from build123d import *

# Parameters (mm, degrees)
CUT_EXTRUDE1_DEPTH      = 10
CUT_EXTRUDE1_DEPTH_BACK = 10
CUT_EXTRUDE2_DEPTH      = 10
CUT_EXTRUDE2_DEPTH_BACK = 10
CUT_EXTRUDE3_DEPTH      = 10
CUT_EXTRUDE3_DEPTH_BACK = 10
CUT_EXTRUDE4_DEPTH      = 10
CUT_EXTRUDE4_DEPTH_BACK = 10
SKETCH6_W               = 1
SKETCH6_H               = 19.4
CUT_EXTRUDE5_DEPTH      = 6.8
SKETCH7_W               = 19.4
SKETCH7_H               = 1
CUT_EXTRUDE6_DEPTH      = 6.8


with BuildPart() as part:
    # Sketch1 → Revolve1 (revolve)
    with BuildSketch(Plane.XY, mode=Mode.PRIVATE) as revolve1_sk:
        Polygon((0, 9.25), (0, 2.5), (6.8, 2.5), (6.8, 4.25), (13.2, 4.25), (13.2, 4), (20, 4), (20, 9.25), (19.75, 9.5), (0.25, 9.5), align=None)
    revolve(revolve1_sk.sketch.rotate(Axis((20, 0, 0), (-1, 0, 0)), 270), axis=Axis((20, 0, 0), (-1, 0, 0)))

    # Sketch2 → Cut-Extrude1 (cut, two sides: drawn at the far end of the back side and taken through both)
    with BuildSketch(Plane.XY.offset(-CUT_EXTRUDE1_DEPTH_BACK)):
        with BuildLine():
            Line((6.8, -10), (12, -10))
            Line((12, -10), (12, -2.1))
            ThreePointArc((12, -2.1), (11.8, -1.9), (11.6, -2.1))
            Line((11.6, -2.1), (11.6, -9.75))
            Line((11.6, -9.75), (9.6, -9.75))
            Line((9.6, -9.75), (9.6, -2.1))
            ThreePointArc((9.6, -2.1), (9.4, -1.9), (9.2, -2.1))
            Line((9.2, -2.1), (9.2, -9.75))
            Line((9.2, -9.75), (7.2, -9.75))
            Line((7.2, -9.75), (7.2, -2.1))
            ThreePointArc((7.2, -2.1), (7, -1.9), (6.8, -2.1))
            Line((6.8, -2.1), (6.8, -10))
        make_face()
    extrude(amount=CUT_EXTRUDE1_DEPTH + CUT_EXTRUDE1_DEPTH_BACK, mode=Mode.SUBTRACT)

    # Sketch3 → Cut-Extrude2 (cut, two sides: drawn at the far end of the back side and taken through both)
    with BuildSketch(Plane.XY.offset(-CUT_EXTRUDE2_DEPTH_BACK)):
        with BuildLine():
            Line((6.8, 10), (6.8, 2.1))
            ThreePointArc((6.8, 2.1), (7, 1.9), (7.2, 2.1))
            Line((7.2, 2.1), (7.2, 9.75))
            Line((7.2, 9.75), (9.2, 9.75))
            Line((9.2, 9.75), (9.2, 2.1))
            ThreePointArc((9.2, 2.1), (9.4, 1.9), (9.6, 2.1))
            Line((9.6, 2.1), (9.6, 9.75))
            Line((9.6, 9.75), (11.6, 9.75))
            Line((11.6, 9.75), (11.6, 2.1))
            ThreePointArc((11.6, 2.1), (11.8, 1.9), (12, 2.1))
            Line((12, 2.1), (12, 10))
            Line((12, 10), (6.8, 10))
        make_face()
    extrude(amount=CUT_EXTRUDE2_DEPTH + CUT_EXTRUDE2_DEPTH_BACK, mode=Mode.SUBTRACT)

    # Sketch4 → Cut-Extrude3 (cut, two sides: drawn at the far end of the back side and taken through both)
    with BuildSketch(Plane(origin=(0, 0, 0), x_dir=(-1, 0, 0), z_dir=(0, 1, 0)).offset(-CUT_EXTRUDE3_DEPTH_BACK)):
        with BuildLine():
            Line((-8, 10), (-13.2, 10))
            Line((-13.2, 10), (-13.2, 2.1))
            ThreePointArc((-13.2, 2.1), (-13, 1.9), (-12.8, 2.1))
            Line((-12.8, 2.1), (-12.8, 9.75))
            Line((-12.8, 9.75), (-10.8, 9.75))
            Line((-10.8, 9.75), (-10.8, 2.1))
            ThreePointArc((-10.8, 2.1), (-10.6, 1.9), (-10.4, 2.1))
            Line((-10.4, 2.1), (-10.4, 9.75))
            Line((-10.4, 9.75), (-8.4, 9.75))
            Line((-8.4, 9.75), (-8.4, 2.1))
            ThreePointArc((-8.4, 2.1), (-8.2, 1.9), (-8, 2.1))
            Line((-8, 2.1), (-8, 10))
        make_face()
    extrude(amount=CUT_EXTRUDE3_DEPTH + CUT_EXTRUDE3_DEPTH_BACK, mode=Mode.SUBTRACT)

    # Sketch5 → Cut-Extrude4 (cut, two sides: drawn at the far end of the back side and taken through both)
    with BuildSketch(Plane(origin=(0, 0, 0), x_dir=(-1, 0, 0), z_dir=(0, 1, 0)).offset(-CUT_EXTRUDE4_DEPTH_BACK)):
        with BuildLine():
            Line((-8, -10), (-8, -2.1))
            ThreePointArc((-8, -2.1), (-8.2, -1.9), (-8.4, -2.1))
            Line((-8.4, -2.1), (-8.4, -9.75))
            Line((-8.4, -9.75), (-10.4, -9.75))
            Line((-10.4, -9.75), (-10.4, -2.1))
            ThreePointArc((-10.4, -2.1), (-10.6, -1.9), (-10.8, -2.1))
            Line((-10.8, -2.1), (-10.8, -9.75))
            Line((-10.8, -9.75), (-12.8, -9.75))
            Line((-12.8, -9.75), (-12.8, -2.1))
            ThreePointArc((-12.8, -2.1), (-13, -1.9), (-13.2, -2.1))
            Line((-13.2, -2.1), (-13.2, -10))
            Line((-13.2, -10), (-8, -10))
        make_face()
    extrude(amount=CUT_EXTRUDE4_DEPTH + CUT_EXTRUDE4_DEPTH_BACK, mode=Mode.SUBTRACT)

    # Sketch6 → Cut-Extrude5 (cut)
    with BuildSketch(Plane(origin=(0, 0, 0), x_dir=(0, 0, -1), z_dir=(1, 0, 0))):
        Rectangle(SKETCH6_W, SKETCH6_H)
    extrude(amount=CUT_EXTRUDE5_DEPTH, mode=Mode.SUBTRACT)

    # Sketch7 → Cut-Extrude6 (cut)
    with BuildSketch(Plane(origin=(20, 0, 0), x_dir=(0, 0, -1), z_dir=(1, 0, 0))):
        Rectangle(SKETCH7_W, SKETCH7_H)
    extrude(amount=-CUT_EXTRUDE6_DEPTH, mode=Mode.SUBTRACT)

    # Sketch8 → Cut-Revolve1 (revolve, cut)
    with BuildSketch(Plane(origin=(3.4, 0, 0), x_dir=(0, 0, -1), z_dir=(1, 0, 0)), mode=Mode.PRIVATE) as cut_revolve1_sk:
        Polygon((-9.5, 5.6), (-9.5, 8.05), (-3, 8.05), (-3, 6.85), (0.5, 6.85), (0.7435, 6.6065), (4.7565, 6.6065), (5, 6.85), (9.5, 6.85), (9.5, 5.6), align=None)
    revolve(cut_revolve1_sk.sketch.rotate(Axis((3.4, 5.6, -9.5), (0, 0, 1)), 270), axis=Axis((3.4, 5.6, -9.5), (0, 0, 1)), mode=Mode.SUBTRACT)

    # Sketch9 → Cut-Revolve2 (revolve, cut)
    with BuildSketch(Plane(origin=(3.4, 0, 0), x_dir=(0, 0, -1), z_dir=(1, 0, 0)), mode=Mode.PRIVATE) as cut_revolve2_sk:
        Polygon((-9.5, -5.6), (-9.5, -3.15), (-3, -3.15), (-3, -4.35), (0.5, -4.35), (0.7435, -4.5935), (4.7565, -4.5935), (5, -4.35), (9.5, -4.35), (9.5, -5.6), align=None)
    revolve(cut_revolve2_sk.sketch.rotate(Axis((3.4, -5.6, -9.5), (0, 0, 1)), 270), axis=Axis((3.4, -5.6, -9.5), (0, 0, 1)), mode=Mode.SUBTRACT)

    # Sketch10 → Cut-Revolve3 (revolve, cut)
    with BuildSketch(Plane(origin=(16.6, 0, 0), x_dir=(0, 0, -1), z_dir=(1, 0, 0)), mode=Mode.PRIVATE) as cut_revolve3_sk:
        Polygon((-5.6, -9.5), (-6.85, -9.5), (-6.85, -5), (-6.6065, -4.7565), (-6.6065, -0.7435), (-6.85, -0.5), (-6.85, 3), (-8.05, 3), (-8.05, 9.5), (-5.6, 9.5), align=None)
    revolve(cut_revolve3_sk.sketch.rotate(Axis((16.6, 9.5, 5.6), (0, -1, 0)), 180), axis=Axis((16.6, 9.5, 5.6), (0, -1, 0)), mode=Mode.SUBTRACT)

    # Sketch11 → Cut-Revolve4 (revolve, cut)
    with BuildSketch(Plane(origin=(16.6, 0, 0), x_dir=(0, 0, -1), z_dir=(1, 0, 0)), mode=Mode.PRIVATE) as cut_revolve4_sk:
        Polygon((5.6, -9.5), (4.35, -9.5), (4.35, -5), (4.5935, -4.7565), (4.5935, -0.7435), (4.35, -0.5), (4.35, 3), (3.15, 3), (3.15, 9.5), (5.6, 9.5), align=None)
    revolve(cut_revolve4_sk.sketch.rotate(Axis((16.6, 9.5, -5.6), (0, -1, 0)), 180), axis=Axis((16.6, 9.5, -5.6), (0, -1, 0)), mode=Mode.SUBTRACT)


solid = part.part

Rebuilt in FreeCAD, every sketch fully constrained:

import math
import FreeCAD as App
import Part
import Sketcher
from FreeCAD import Vector
Q = App.Units.Quantity


def add_polygon(sketch, points):
    """Adds a closed chain of lines whose ends are joined by coincident constraints."""
    first, n = sketch.GeometryCount, len(points)
    for a, b in zip(points, points[1:] + points[:1]):
        sketch.addGeometry(Part.LineSegment(App.Vector(*a, 0), App.Vector(*b, 0)), False)
    for i in range(n):
        sketch.addConstraint(Sketcher.Constraint("Coincident", first + i, 2, first + (i + 1) % n, 1))

doc = App.newDocument("Part")
body = doc.addObject("PartDesign::Body", "Body")

# Sketch on XY plane
sketch1 = body.newObject("Sketcher::SketchObject", "Sketch")
sketch1.AttachmentSupport = (doc.getObject("XY_Plane"), [""])
sketch1.MapMode = "FlatFace"
add_polygon(sketch1, [(0, 9.25), (0, 2.5), (6.8, 2.5), (6.8, 4.25), (13.2, 4.25), (13.2, 4), (20, 4), (20, 9.25), (19.75, 9.5), (0.25, 9.5)])  # lines 0-9
sketch1.addConstraint([
    Sketcher.Constraint("Vertical", 0),
    Sketcher.Constraint("Horizontal", 1),
    Sketcher.Constraint("Vertical", 2),
    Sketcher.Constraint("Horizontal", 3),
    Sketcher.Constraint("Vertical", 4),
    Sketcher.Constraint("Horizontal", 5),
    Sketcher.Constraint("Vertical", 6),
    Sketcher.Constraint("Horizontal", 8),
    Sketcher.Constraint("PointOnObject", 0, 2, -2),
    Sketcher.Constraint("Perpendicular", 7, 9),
    Sketcher.Constraint("Horizontal", 6, 2, 9, 2),
    Sketcher.Constraint("Equal", 1, 5),
    Sketcher.Constraint("Equal", 7, 9),
    Sketcher.Constraint("DistanceX", 1, 1, 1, 2, Q("6.8 mm")),
    Sketcher.Constraint("DistanceX", 3, 1, 3, 2, Q("6.4 mm")),
    Sketcher.Constraint("DistanceX", 8, 2, 8, 1, Q("19.5 mm")),
    Sketcher.Constraint("DistanceY", -1, 1, 4, 2, Q("4 mm")),
    Sketcher.Constraint("DistanceY", 3, 2, 6, 2, Q("5 mm")),
    Sketcher.Constraint("DistanceY", 0, 2, 8, 2, Q("7 mm")),
    Sketcher.Constraint("DistanceY", 4, 2, 4, 1, Q("0.25 mm")),
])
revolution = body.newObject("PartDesign::Revolution", "Revolution")
revolution.Profile = sketch1
revolution.ReferenceAxis = (sketch1, ["H_Axis"])
revolution.Angle = 360

# Sketch on XY plane
sketch2 = body.newObject("Sketcher::SketchObject", "Sketch001")
sketch2.AttachmentSupport = (doc.getObject("XY_Plane"), [""])
sketch2.MapMode = "FlatFace"
sketch2.addGeometry([
    Part.LineSegment(Vector(6.8, -10, 0), Vector(12, -10, 0)),  # 0
    Part.LineSegment(Vector(12, -10, 0), Vector(12, -2.1, 0)),  # 1
    Part.ArcOfCircle(Part.Circle(Vector(11.8, -2.1, 0), Vector(0, 0, 1), 0.2), math.radians(0), math.radians(180)),  # 2
    Part.LineSegment(Vector(11.6, -2.1, 0), Vector(11.6, -9.75, 0)),  # 3
    Part.LineSegment(Vector(11.6, -9.75, 0), Vector(9.6, -9.75, 0)),  # 4
    Part.LineSegment(Vector(9.6, -9.75, 0), Vector(9.6, -2.1, 0)),  # 5
    Part.ArcOfCircle(Part.Circle(Vector(9.4, -2.1, 0), Vector(0, 0, 1), 0.2), math.radians(0), math.radians(180)),  # 6
    Part.LineSegment(Vector(9.2, -2.1, 0), Vector(9.2, -9.75, 0)),  # 7
    Part.LineSegment(Vector(9.2, -9.75, 0), Vector(7.2, -9.75, 0)),  # 8
    Part.LineSegment(Vector(7.2, -9.75, 0), Vector(7.2, -2.1, 0)),  # 9
    Part.ArcOfCircle(Part.Circle(Vector(7, -2.1, 0), Vector(0, 0, 1), 0.2), math.radians(0), math.radians(180)),  # 10
    Part.LineSegment(Vector(6.8, -2.1, 0), Vector(6.8, -10, 0)),  # 11
], False)
sketch2.addConstraint([
    Sketcher.Constraint("Coincident", 0, 2, 1, 1),
    Sketcher.Constraint("Tangent", 1, 2, 2, 1),
    Sketcher.Constraint("Tangent", 2, 2, 3, 1),
    Sketcher.Constraint("Coincident", 3, 2, 4, 1),
    Sketcher.Constraint("Coincident", 4, 2, 5, 1),
    Sketcher.Constraint("Tangent", 5, 2, 6, 1),
    Sketcher.Constraint("Tangent", 6, 2, 7, 1),
    Sketcher.Constraint("Coincident", 7, 2, 8, 1),
    Sketcher.Constraint("Coincident", 8, 2, 9, 1),
    Sketcher.Constraint("Tangent", 9, 2, 10, 1),
    Sketcher.Constraint("Tangent", 10, 2, 11, 1),
    Sketcher.Constraint("Coincident", 11, 2, 0, 1),
    Sketcher.Constraint("Horizontal", 0),
    Sketcher.Constraint("Vertical", 1),
    Sketcher.Constraint("Vertical", 3),
    Sketcher.Constraint("Horizontal", 4),
    Sketcher.Constraint("Vertical", 5),
    Sketcher.Constraint("Vertical", 7),
    Sketcher.Constraint("Horizontal", 8),
    Sketcher.Constraint("Vertical", 9),
    Sketcher.Constraint("Vertical", 11),
    Sketcher.Constraint("Equal", 2, 6),
    Sketcher.Constraint("Equal", 6, 10),
    Sketcher.Constraint("Horizontal", 2, 3, 6, 3),
    Sketcher.Constraint("Horizontal", 6, 3, 10, 3),
    Sketcher.Constraint("Horizontal", 4, 2, 7, 2),
    Sketcher.Constraint("Equal", 4, 8),
    Sketcher.Constraint("Radius", 2, Q("0.2 mm")),
    Sketcher.Constraint("DistanceX", 4, 2, 4, 1, Q("2 mm")),
    Sketcher.Constraint("DistanceY", 1, 1, 1, 2, Q("7.9 mm")),
    Sketcher.Constraint("DistanceX", -1, 1, 10, 3, Q("7 mm")),
    Sketcher.Constraint("DistanceY", 0, 2, -1, 1, Q("10 mm")),
    Sketcher.Constraint("DistanceY", 3, 2, 3, 1, Q("7.65 mm")),
])
pocket1 = body.newObject("PartDesign::Pocket", "Pocket")
pocket1.Profile = sketch2
pocket1.Type = "ThroughAll"
pocket1.Midplane = True

# Sketch on XY plane
sketch3 = body.newObject("Sketcher::SketchObject", "Sketch002")
sketch3.AttachmentSupport = (doc.getObject("XY_Plane"), [""])
sketch3.MapMode = "FlatFace"
sketch3.addGeometry([
    Part.LineSegment(Vector(6.8, 10, 0), Vector(6.8, 2.1, 0)),  # 0
    Part.ArcOfCircle(Part.Circle(Vector(7, 2.1, 0), Vector(0, 0, 1), 0.2), math.radians(180), math.radians(360)),  # 1
    Part.LineSegment(Vector(7.2, 2.1, 0), Vector(7.2, 9.75, 0)),  # 2
    Part.LineSegment(Vector(7.2, 9.75, 0), Vector(9.2, 9.75, 0)),  # 3
    Part.LineSegment(Vector(9.2, 9.75, 0), Vector(9.2, 2.1, 0)),  # 4
    Part.ArcOfCircle(Part.Circle(Vector(9.4, 2.1, 0), Vector(0, 0, 1), 0.2), math.radians(180), math.radians(360)),  # 5
    Part.LineSegment(Vector(9.6, 2.1, 0), Vector(9.6, 9.75, 0)),  # 6
    Part.LineSegment(Vector(9.6, 9.75, 0), Vector(11.6, 9.75, 0)),  # 7
    Part.LineSegment(Vector(11.6, 9.75, 0), Vector(11.6, 2.1, 0)),  # 8
    Part.ArcOfCircle(Part.Circle(Vector(11.8, 2.1, 0), Vector(0, 0, 1), 0.2), math.radians(180), math.radians(360)),  # 9
    Part.LineSegment(Vector(12, 2.1, 0), Vector(12, 10, 0)),  # 10
    Part.LineSegment(Vector(12, 10, 0), Vector(6.8, 10, 0)),  # 11
], False)
sketch3.addConstraint([
    Sketcher.Constraint("Tangent", 0, 2, 1, 1),
    Sketcher.Constraint("Tangent", 1, 2, 2, 1),
    Sketcher.Constraint("Coincident", 2, 2, 3, 1),
    Sketcher.Constraint("Coincident", 3, 2, 4, 1),
    Sketcher.Constraint("Tangent", 4, 2, 5, 1),
    Sketcher.Constraint("Tangent", 5, 2, 6, 1),
    Sketcher.Constraint("Coincident", 6, 2, 7, 1),
    Sketcher.Constraint("Coincident", 7, 2, 8, 1),
    Sketcher.Constraint("Tangent", 8, 2, 9, 1),
    Sketcher.Constraint("Tangent", 9, 2, 10, 1),
    Sketcher.Constraint("Coincident", 10, 2, 11, 1),
    Sketcher.Constraint("Coincident", 11, 2, 0, 1),
    Sketcher.Constraint("Vertical", 0),
    Sketcher.Constraint("Vertical", 2),
    Sketcher.Constraint("Horizontal", 3),
    Sketcher.Constraint("Vertical", 4),
    Sketcher.Constraint("Vertical", 6),
    Sketcher.Constraint("Horizontal", 7),
    Sketcher.Constraint("Vertical", 8),
    Sketcher.Constraint("Vertical", 10),
    Sketcher.Constraint("Horizontal", 11),
    Sketcher.Constraint("Equal", 1, 5),
    Sketcher.Constraint("Equal", 5, 9),
    Sketcher.Constraint("Horizontal", 1, 3, 5, 3),
    Sketcher.Constraint("Horizontal", 5, 3, 9, 3),
    Sketcher.Constraint("Horizontal", 3, 2, 6, 2),
    Sketcher.Constraint("Equal", 3, 7),
    Sketcher.Constraint("Radius", 1, Q("0.2 mm")),
    Sketcher.Constraint("DistanceX", 3, 1, 3, 2, Q("2 mm")),
    Sketcher.Constraint("DistanceY", 0, 2, 0, 1, Q("7.9 mm")),
    Sketcher.Constraint("DistanceX", -1, 1, 1, 3, Q("7 mm")),
    Sketcher.Constraint("DistanceY", -1, 1, 10, 2, Q("10 mm")),
    Sketcher.Constraint("DistanceY", 2, 1, 2, 2, Q("7.65 mm")),
])
pocket2 = body.newObject("PartDesign::Pocket", "Pocket001")
pocket2.Profile = sketch3
pocket2.Type = "ThroughAll"
pocket2.Midplane = True

# Sketch on XZ plane
sketch4 = body.newObject("Sketcher::SketchObject", "Sketch003")
sketch4.AttachmentSupport = (doc.getObject("XZ_Plane"), [""])
sketch4.MapMode = "FlatFace"
sketch4.addGeometry([
    Part.LineSegment(Vector(8, 10, 0), Vector(13.2, 10, 0)),  # 0
    Part.LineSegment(Vector(13.2, 10, 0), Vector(13.2, 2.1, 0)),  # 1
    Part.ArcOfCircle(Part.Circle(Vector(13, 2.1, 0), Vector(0, 0, 1), 0.2), math.radians(180), math.radians(360)),  # 2
    Part.LineSegment(Vector(12.8, 2.1, 0), Vector(12.8, 9.75, 0)),  # 3
    Part.LineSegment(Vector(12.8, 9.75, 0), Vector(10.8, 9.75, 0)),  # 4
    Part.LineSegment(Vector(10.8, 9.75, 0), Vector(10.8, 2.1, 0)),  # 5
    Part.ArcOfCircle(Part.Circle(Vector(10.6, 2.1, 0), Vector(0, 0, 1), 0.2), math.radians(180), math.radians(360)),  # 6
    Part.LineSegment(Vector(10.4, 2.1, 0), Vector(10.4, 9.75, 0)),  # 7
    Part.LineSegment(Vector(10.4, 9.75, 0), Vector(8.4, 9.75, 0)),  # 8
    Part.LineSegment(Vector(8.4, 9.75, 0), Vector(8.4, 2.1, 0)),  # 9
    Part.ArcOfCircle(Part.Circle(Vector(8.2, 2.1, 0), Vector(0, 0, 1), 0.2), math.radians(180), math.radians(360)),  # 10
    Part.LineSegment(Vector(8, 2.1, 0), Vector(8, 10, 0)),  # 11
], False)
sketch4.addConstraint([
    Sketcher.Constraint("Coincident", 0, 2, 1, 1),
    Sketcher.Constraint("Tangent", 1, 2, 2, 2),
    Sketcher.Constraint("Tangent", 2, 1, 3, 1),
    Sketcher.Constraint("Coincident", 3, 2, 4, 1),
    Sketcher.Constraint("Coincident", 4, 2, 5, 1),
    Sketcher.Constraint("Tangent", 5, 2, 6, 2),
    Sketcher.Constraint("Tangent", 6, 1, 7, 1),
    Sketcher.Constraint("Coincident", 7, 2, 8, 1),
    Sketcher.Constraint("Coincident", 8, 2, 9, 1),
    Sketcher.Constraint("Tangent", 9, 2, 10, 2),
    Sketcher.Constraint("Tangent", 10, 1, 11, 1),
    Sketcher.Constraint("Coincident", 11, 2, 0, 1),
    Sketcher.Constraint("Horizontal", 0),
    Sketcher.Constraint("Vertical", 1),
    Sketcher.Constraint("Vertical", 3),
    Sketcher.Constraint("Horizontal", 4),
    Sketcher.Constraint("Vertical", 5),
    Sketcher.Constraint("Vertical", 7),
    Sketcher.Constraint("Horizontal", 8),
    Sketcher.Constraint("Vertical", 9),
    Sketcher.Constraint("Vertical", 11),
    Sketcher.Constraint("Equal", 2, 6),
    Sketcher.Constraint("Equal", 6, 10),
    Sketcher.Constraint("Horizontal", 2, 3, 6, 3),
    Sketcher.Constraint("Horizontal", 6, 3, 10, 3),
    Sketcher.Constraint("Horizontal", 4, 2, 7, 2),
    Sketcher.Constraint("Equal", 4, 8),
    Sketcher.Constraint("Radius", 2, Q("0.2 mm")),
    Sketcher.Constraint("DistanceX", 4, 2, 4, 1, Q("2 mm")),
    Sketcher.Constraint("DistanceY", 1, 2, 1, 1, Q("7.9 mm")),
    Sketcher.Constraint("DistanceX", -1, 1, 2, 3, Q("13 mm")),
    Sketcher.Constraint("DistanceY", -1, 1, 0, 2, Q("10 mm")),
    Sketcher.Constraint("DistanceY", 3, 1, 3, 2, Q("7.65 mm")),
])
pocket3 = body.newObject("PartDesign::Pocket", "Pocket002")
pocket3.Profile = sketch4
pocket3.Type = "ThroughAll"
pocket3.Midplane = True

# Sketch on XZ plane
sketch5 = body.newObject("Sketcher::SketchObject", "Sketch004")
sketch5.AttachmentSupport = (doc.getObject("XZ_Plane"), [""])
sketch5.MapMode = "FlatFace"
sketch5.addGeometry([
    Part.LineSegment(Vector(8, -10, 0), Vector(8, -2.1, 0)),  # 0
    Part.ArcOfCircle(Part.Circle(Vector(8.2, -2.1, 0), Vector(0, 0, 1), 0.2), math.radians(0), math.radians(180)),  # 1
    Part.LineSegment(Vector(8.4, -2.1, 0), Vector(8.4, -9.75, 0)),  # 2
    Part.LineSegment(Vector(8.4, -9.75, 0), Vector(10.4, -9.75, 0)),  # 3
    Part.LineSegment(Vector(10.4, -9.75, 0), Vector(10.4, -2.1, 0)),  # 4
    Part.ArcOfCircle(Part.Circle(Vector(10.6, -2.1, 0), Vector(0, 0, 1), 0.2), math.radians(0), math.radians(180)),  # 5
    Part.LineSegment(Vector(10.8, -2.1, 0), Vector(10.8, -9.75, 0)),  # 6
    Part.LineSegment(Vector(10.8, -9.75, 0), Vector(12.8, -9.75, 0)),  # 7
    Part.LineSegment(Vector(12.8, -9.75, 0), Vector(12.8, -2.1, 0)),  # 8
    Part.ArcOfCircle(Part.Circle(Vector(13, -2.1, 0), Vector(0, 0, 1), 0.2), math.radians(0), math.radians(180)),  # 9
    Part.LineSegment(Vector(13.2, -2.1, 0), Vector(13.2, -10, 0)),  # 10
    Part.LineSegment(Vector(13.2, -10, 0), Vector(8, -10, 0)),  # 11
], False)
sketch5.addConstraint([
    Sketcher.Constraint("Tangent", 0, 2, 1, 2),
    Sketcher.Constraint("Tangent", 1, 1, 2, 1),
    Sketcher.Constraint("Coincident", 2, 2, 3, 1),
    Sketcher.Constraint("Coincident", 3, 2, 4, 1),
    Sketcher.Constraint("Tangent", 4, 2, 5, 2),
    Sketcher.Constraint("Tangent", 5, 1, 6, 1),
    Sketcher.Constraint("Coincident", 6, 2, 7, 1),
    Sketcher.Constraint("Coincident", 7, 2, 8, 1),
    Sketcher.Constraint("Tangent", 8, 2, 9, 2),
    Sketcher.Constraint("Tangent", 9, 1, 10, 1),
    Sketcher.Constraint("Coincident", 10, 2, 11, 1),
    Sketcher.Constraint("Coincident", 11, 2, 0, 1),
    Sketcher.Constraint("Vertical", 0),
    Sketcher.Constraint("Vertical", 2),
    Sketcher.Constraint("Horizontal", 3),
    Sketcher.Constraint("Vertical", 4),
    Sketcher.Constraint("Vertical", 6),
    Sketcher.Constraint("Horizontal", 7),
    Sketcher.Constraint("Vertical", 8),
    Sketcher.Constraint("Vertical", 10),
    Sketcher.Constraint("Horizontal", 11),
    Sketcher.Constraint("Equal", 1, 5),
    Sketcher.Constraint("Equal", 5, 9),
    Sketcher.Constraint("Horizontal", 1, 3, 5, 3),
    Sketcher.Constraint("Horizontal", 5, 3, 9, 3),
    Sketcher.Constraint("Horizontal", 3, 2, 6, 2),
    Sketcher.Constraint("Equal", 3, 7),
    Sketcher.Constraint("Radius", 1, Q("0.2 mm")),
    Sketcher.Constraint("DistanceX", 3, 1, 3, 2, Q("2 mm")),
    Sketcher.Constraint("DistanceY", 0, 1, 0, 2, Q("7.9 mm")),
    Sketcher.Constraint("DistanceX", -1, 1, 9, 3, Q("13 mm")),
    Sketcher.Constraint("DistanceY", 10, 2, -1, 1, Q("10 mm")),
    Sketcher.Constraint("DistanceY", 2, 2, 2, 1, Q("7.65 mm")),
])
pocket4 = body.newObject("PartDesign::Pocket", "Pocket003")
pocket4.Profile = sketch5
pocket4.Type = "ThroughAll"
pocket4.Midplane = True

# Sketch on YZ plane
sketch6 = body.newObject("Sketcher::SketchObject", "Sketch005")
sketch6.AttachmentSupport = (doc.getObject("YZ_Plane"), [""])
sketch6.MapMode = "FlatFace"
add_polygon(sketch6, [(9.7, 0.5), (-9.7, 0.5), (-9.7, -0.5), (9.7, -0.5)])  # lines 0-3
sketch6.addConstraint([
    Sketcher.Constraint("Horizontal", 0),
    Sketcher.Constraint("Vertical", 1),
    Sketcher.Constraint("Horizontal", 2),
    Sketcher.Constraint("Vertical", 3),
    Sketcher.Constraint("Symmetric", 0, 2, 2, 2, -1, 1),
    Sketcher.Constraint("DistanceY", 1, 2, 1, 1, Q("1 mm")),
    Sketcher.Constraint("DistanceX", 0, 2, 0, 1, Q("19.4 mm")),
])
pocket5 = body.newObject("PartDesign::Pocket", "Pocket004")
pocket5.Profile = sketch6
pocket5.Length = 6.8
pocket5.Reversed = True

# Sketch on YZ plane
sketch7 = body.newObject("Sketcher::SketchObject", "Sketch006")
sketch7.AttachmentSupport = (doc.getObject("YZ_Plane"), [""])
sketch7.MapMode = "FlatFace"
sketch7.AttachmentOffset = App.Placement(Vector(0, 0, 20), App.Rotation())
add_polygon(sketch7, [(0.5, 9.7), (-0.5, 9.7), (-0.5, -9.7), (0.5, -9.7)])  # lines 0-3
sketch7.addConstraint([
    Sketcher.Constraint("Horizontal", 0),
    Sketcher.Constraint("Vertical", 1),
    Sketcher.Constraint("Horizontal", 2),
    Sketcher.Constraint("Vertical", 3),
    Sketcher.Constraint("Symmetric", 0, 2, 2, 2, -1, 1),
    Sketcher.Constraint("DistanceX", 0, 2, 0, 1, Q("1 mm")),
    Sketcher.Constraint("DistanceY", 1, 2, 1, 1, Q("19.4 mm")),
])
pocket6 = body.newObject("PartDesign::Pocket", "Pocket005")
pocket6.Profile = sketch7
pocket6.Length = 6.8

# Sketch on YZ plane
sketch8 = body.newObject("Sketcher::SketchObject", "Sketch007")
sketch8.AttachmentSupport = (doc.getObject("YZ_Plane"), [""])
sketch8.MapMode = "FlatFace"
sketch8.AttachmentOffset = App.Placement(Vector(0, 0, 3.4), App.Rotation())
add_polygon(sketch8, [(8.05, 9.5), (5.6, 9.5), (5.6, -9.5), (6.85, -9.5), (6.85, -5), (6.61, -4.76), (6.61, -0.74), (6.85, -0.5), (6.85, 3), (8.05, 3)])  # lines 0-9
sketch8.addGeometry(Part.LineSegment(Vector(5.6, -9.5, 0), Vector(5.6, 9.5, 0)), True)  # axis
sketch8.addConstraint([
    Sketcher.Constraint("Horizontal", 0),
    Sketcher.Constraint("Vertical", 1),
    Sketcher.Constraint("Horizontal", 2),
    Sketcher.Constraint("Vertical", 3),
    Sketcher.Constraint("Vertical", 5),
    Sketcher.Constraint("Vertical", 7),
    Sketcher.Constraint("Horizontal", 8),
    Sketcher.Constraint("Vertical", 9),
    Sketcher.Constraint("Vertical", 10),
    Sketcher.Constraint("Coincident", 10, 1, 1, 2),
    Sketcher.Constraint("Perpendicular", 4, 6),
    Sketcher.Constraint("Horizontal", 9, 2, 10, 2),
    Sketcher.Constraint("Vertical", 3, 2, 6, 2),
    Sketcher.Constraint("Equal", 4, 6),
    Sketcher.Constraint("DistanceY", 1, 2, 1, 1, Q("19 mm")),
    Sketcher.Constraint("DistanceX", 8, 1, 8, 2, Q("1.2 mm")),
    Sketcher.Constraint("DistanceY", 3, 1, 3, 2, Q("4.5 mm")),
    Sketcher.Constraint("DistanceY", 7, 1, 7, 2, Q("3.5 mm")),
    Sketcher.Constraint("DistanceY", 9, 1, 9, 2, Q("6.5 mm")),
    Sketcher.Constraint("DistanceY", 3, 2, -1, 1, Q("5 mm")),
    Sketcher.Constraint("DistanceX", 0, 2, 0, 1, Q("2.45 mm")),
    Sketcher.Constraint("DistanceX", -1, 1, 0, 2, Q("5.6 mm")),
    Sketcher.Constraint("DistanceY", 5, 1, 5, 2, Q("4.013 mm")),
])
groove = body.newObject("PartDesign::Groove", "Groove")
groove.Profile = sketch8
groove.ReferenceAxis = (sketch8, ["Axis0"])
groove.Angle = 360

# Sketch on YZ plane
sketch9 = body.newObject("Sketcher::SketchObject", "Sketch008")
sketch9.AttachmentSupport = (doc.getObject("YZ_Plane"), [""])
sketch9.MapMode = "FlatFace"
sketch9.AttachmentOffset = App.Placement(Vector(0, 0, 3.4), App.Rotation())
add_polygon(sketch9, [(-3.15, 9.5), (-5.6, 9.5), (-5.6, -9.5), (-4.35, -9.5), (-4.35, -5), (-4.59, -4.76), (-4.59, -0.74), (-4.35, -0.5), (-4.35, 3), (-3.15, 3)])  # lines 0-9
sketch9.addGeometry(Part.LineSegment(Vector(-5.6, -9.5, 0), Vector(-5.6, 9.5, 0)), True)  # axis
sketch9.addConstraint([
    Sketcher.Constraint("Horizontal", 0),
    Sketcher.Constraint("Vertical", 1),
    Sketcher.Constraint("Horizontal", 2),
    Sketcher.Constraint("Vertical", 3),
    Sketcher.Constraint("Vertical", 5),
    Sketcher.Constraint("Vertical", 7),
    Sketcher.Constraint("Horizontal", 8),
    Sketcher.Constraint("Vertical", 9),
    Sketcher.Constraint("Vertical", 10),
    Sketcher.Constraint("Coincident", 10, 1, 1, 2),
    Sketcher.Constraint("Perpendicular", 4, 6),
    Sketcher.Constraint("Horizontal", 9, 2, 10, 2),
    Sketcher.Constraint("Vertical", 3, 2, 6, 2),
    Sketcher.Constraint("Equal", 4, 6),
    Sketcher.Constraint("DistanceY", 1, 2, 1, 1, Q("19 mm")),
    Sketcher.Constraint("DistanceX", 8, 1, 8, 2, Q("1.2 mm")),
    Sketcher.Constraint("DistanceY", 3, 1, 3, 2, Q("4.5 mm")),
    Sketcher.Constraint("DistanceY", 7, 1, 7, 2, Q("3.5 mm")),
    Sketcher.Constraint("DistanceY", 9, 1, 9, 2, Q("6.5 mm")),
    Sketcher.Constraint("DistanceY", 3, 2, -1, 1, Q("5 mm")),
    Sketcher.Constraint("DistanceX", 0, 2, 0, 1, Q("2.45 mm")),
    Sketcher.Constraint("DistanceX", 0, 2, -1, 1, Q("5.6 mm")),
    Sketcher.Constraint("DistanceY", 5, 1, 5, 2, Q("4.013 mm")),
])
groove2 = body.newObject("PartDesign::Groove", "Groove001")
groove2.Profile = sketch9
groove2.ReferenceAxis = (sketch9, ["Axis0"])
groove2.Angle = 360

# Sketch on YZ plane
sketch10 = body.newObject("Sketcher::SketchObject", "Sketch009")
sketch10.AttachmentSupport = (doc.getObject("YZ_Plane"), [""])
sketch10.MapMode = "FlatFace"
sketch10.AttachmentOffset = App.Placement(Vector(0, 0, 16.6), App.Rotation())
add_polygon(sketch10, [(-9.5, 6.85), (-9.5, 5.6), (9.5, 5.6), (9.5, 8.05), (3, 8.05), (3, 6.85), (-0.5, 6.85), (-0.74, 6.61), (-4.76, 6.61), (-5, 6.85)])  # lines 0-9
sketch10.addGeometry(Part.LineSegment(Vector(9.5, 5.6, 0), Vector(-9.5, 5.6, 0)), True)  # axis
sketch10.addConstraint([
    Sketcher.Constraint("Vertical", 0),
    Sketcher.Constraint("Horizontal", 1),
    Sketcher.Constraint("Vertical", 2),
    Sketcher.Constraint("Horizontal", 3),
    Sketcher.Constraint("Vertical", 4),
    Sketcher.Constraint("Horizontal", 5),
    Sketcher.Constraint("Horizontal", 7),
    Sketcher.Constraint("Horizontal", 9),
    Sketcher.Constraint("Horizontal", 10),
    Sketcher.Constraint("Coincident", 10, 1, 1, 2),
    Sketcher.Constraint("Perpendicular", 6, 8),
    Sketcher.Constraint("Horizontal", 5, 2, 8, 2),
    Sketcher.Constraint("Vertical", 9, 2, 10, 2),
    Sketcher.Constraint("Equal", 6, 8),
    Sketcher.Constraint("DistanceX", 1, 1, 1, 2, Q("19 mm")),
    Sketcher.Constraint("DistanceX", 3, 2, 3, 1, Q("6.5 mm")),
    Sketcher.Constraint("DistanceX", 5, 2, 5, 1, Q("3.5 mm")),
    Sketcher.Constraint("DistanceX", 9, 2, 9, 1, Q("4.5 mm")),
    Sketcher.Constraint("DistanceY", 4, 2, 4, 1, Q("1.2 mm")),
    Sketcher.Constraint("DistanceX", -1, 1, 3, 2, Q("3 mm")),
    Sketcher.Constraint("DistanceY", 0, 2, 0, 1, Q("1.25 mm")),
    Sketcher.Constraint("DistanceY", -1, 1, 0, 2, Q("5.6 mm")),
    Sketcher.Constraint("DistanceX", 7, 2, 7, 1, Q("4.013 mm")),
])
groove3 = body.newObject("PartDesign::Groove", "Groove002")
groove3.Profile = sketch10
groove3.ReferenceAxis = (sketch10, ["Axis0"])
groove3.Angle = 360

# Sketch on YZ plane
sketch11 = body.newObject("Sketcher::SketchObject", "Sketch010")
sketch11.AttachmentSupport = (doc.getObject("YZ_Plane"), [""])
sketch11.MapMode = "FlatFace"
sketch11.AttachmentOffset = App.Placement(Vector(0, 0, 16.6), App.Rotation())
add_polygon(sketch11, [(-9.5, -4.35), (-9.5, -5.6), (9.5, -5.6), (9.5, -3.15), (3, -3.15), (3, -4.35), (-0.5, -4.35), (-0.74, -4.59), (-4.76, -4.59), (-5, -4.35)])  # lines 0-9
sketch11.addGeometry(Part.LineSegment(Vector(9.5, -5.6, 0), Vector(-9.5, -5.6, 0)), True)  # axis
sketch11.addConstraint([
    Sketcher.Constraint("Vertical", 0),
    Sketcher.Constraint("Horizontal", 1),
    Sketcher.Constraint("Vertical", 2),
    Sketcher.Constraint("Horizontal", 3),
    Sketcher.Constraint("Vertical", 4),
    Sketcher.Constraint("Horizontal", 5),
    Sketcher.Constraint("Horizontal", 7),
    Sketcher.Constraint("Horizontal", 9),
    Sketcher.Constraint("Horizontal", 10),
    Sketcher.Constraint("Coincident", 10, 1, 1, 2),
    Sketcher.Constraint("Perpendicular", 6, 8),
    Sketcher.Constraint("Horizontal", 5, 2, 8, 2),
    Sketcher.Constraint("Vertical", 9, 2, 10, 2),
    Sketcher.Constraint("Equal", 6, 8),
    Sketcher.Constraint("DistanceX", 1, 1, 1, 2, Q("19 mm")),
    Sketcher.Constraint("DistanceX", 3, 2, 3, 1, Q("6.5 mm")),
    Sketcher.Constraint("DistanceX", 5, 2, 5, 1, Q("3.5 mm")),
    Sketcher.Constraint("DistanceX", 9, 2, 9, 1, Q("4.5 mm")),
    Sketcher.Constraint("DistanceY", 4, 2, 4, 1, Q("1.2 mm")),
    Sketcher.Constraint("DistanceX", -1, 1, 3, 2, Q("3 mm")),
    Sketcher.Constraint("DistanceY", 0, 2, 0, 1, Q("1.25 mm")),
    Sketcher.Constraint("DistanceY", 0, 2, -1, 1, Q("5.6 mm")),
    Sketcher.Constraint("DistanceX", 7, 2, 7, 1, Q("4.013 mm")),
])
groove4 = body.newObject("PartDesign::Groove", "Groove003")
groove4.Profile = sketch11
groove4.ReferenceAxis = (sketch11, ["Axis0"])
groove4.Angle = 360

doc.recompute()
